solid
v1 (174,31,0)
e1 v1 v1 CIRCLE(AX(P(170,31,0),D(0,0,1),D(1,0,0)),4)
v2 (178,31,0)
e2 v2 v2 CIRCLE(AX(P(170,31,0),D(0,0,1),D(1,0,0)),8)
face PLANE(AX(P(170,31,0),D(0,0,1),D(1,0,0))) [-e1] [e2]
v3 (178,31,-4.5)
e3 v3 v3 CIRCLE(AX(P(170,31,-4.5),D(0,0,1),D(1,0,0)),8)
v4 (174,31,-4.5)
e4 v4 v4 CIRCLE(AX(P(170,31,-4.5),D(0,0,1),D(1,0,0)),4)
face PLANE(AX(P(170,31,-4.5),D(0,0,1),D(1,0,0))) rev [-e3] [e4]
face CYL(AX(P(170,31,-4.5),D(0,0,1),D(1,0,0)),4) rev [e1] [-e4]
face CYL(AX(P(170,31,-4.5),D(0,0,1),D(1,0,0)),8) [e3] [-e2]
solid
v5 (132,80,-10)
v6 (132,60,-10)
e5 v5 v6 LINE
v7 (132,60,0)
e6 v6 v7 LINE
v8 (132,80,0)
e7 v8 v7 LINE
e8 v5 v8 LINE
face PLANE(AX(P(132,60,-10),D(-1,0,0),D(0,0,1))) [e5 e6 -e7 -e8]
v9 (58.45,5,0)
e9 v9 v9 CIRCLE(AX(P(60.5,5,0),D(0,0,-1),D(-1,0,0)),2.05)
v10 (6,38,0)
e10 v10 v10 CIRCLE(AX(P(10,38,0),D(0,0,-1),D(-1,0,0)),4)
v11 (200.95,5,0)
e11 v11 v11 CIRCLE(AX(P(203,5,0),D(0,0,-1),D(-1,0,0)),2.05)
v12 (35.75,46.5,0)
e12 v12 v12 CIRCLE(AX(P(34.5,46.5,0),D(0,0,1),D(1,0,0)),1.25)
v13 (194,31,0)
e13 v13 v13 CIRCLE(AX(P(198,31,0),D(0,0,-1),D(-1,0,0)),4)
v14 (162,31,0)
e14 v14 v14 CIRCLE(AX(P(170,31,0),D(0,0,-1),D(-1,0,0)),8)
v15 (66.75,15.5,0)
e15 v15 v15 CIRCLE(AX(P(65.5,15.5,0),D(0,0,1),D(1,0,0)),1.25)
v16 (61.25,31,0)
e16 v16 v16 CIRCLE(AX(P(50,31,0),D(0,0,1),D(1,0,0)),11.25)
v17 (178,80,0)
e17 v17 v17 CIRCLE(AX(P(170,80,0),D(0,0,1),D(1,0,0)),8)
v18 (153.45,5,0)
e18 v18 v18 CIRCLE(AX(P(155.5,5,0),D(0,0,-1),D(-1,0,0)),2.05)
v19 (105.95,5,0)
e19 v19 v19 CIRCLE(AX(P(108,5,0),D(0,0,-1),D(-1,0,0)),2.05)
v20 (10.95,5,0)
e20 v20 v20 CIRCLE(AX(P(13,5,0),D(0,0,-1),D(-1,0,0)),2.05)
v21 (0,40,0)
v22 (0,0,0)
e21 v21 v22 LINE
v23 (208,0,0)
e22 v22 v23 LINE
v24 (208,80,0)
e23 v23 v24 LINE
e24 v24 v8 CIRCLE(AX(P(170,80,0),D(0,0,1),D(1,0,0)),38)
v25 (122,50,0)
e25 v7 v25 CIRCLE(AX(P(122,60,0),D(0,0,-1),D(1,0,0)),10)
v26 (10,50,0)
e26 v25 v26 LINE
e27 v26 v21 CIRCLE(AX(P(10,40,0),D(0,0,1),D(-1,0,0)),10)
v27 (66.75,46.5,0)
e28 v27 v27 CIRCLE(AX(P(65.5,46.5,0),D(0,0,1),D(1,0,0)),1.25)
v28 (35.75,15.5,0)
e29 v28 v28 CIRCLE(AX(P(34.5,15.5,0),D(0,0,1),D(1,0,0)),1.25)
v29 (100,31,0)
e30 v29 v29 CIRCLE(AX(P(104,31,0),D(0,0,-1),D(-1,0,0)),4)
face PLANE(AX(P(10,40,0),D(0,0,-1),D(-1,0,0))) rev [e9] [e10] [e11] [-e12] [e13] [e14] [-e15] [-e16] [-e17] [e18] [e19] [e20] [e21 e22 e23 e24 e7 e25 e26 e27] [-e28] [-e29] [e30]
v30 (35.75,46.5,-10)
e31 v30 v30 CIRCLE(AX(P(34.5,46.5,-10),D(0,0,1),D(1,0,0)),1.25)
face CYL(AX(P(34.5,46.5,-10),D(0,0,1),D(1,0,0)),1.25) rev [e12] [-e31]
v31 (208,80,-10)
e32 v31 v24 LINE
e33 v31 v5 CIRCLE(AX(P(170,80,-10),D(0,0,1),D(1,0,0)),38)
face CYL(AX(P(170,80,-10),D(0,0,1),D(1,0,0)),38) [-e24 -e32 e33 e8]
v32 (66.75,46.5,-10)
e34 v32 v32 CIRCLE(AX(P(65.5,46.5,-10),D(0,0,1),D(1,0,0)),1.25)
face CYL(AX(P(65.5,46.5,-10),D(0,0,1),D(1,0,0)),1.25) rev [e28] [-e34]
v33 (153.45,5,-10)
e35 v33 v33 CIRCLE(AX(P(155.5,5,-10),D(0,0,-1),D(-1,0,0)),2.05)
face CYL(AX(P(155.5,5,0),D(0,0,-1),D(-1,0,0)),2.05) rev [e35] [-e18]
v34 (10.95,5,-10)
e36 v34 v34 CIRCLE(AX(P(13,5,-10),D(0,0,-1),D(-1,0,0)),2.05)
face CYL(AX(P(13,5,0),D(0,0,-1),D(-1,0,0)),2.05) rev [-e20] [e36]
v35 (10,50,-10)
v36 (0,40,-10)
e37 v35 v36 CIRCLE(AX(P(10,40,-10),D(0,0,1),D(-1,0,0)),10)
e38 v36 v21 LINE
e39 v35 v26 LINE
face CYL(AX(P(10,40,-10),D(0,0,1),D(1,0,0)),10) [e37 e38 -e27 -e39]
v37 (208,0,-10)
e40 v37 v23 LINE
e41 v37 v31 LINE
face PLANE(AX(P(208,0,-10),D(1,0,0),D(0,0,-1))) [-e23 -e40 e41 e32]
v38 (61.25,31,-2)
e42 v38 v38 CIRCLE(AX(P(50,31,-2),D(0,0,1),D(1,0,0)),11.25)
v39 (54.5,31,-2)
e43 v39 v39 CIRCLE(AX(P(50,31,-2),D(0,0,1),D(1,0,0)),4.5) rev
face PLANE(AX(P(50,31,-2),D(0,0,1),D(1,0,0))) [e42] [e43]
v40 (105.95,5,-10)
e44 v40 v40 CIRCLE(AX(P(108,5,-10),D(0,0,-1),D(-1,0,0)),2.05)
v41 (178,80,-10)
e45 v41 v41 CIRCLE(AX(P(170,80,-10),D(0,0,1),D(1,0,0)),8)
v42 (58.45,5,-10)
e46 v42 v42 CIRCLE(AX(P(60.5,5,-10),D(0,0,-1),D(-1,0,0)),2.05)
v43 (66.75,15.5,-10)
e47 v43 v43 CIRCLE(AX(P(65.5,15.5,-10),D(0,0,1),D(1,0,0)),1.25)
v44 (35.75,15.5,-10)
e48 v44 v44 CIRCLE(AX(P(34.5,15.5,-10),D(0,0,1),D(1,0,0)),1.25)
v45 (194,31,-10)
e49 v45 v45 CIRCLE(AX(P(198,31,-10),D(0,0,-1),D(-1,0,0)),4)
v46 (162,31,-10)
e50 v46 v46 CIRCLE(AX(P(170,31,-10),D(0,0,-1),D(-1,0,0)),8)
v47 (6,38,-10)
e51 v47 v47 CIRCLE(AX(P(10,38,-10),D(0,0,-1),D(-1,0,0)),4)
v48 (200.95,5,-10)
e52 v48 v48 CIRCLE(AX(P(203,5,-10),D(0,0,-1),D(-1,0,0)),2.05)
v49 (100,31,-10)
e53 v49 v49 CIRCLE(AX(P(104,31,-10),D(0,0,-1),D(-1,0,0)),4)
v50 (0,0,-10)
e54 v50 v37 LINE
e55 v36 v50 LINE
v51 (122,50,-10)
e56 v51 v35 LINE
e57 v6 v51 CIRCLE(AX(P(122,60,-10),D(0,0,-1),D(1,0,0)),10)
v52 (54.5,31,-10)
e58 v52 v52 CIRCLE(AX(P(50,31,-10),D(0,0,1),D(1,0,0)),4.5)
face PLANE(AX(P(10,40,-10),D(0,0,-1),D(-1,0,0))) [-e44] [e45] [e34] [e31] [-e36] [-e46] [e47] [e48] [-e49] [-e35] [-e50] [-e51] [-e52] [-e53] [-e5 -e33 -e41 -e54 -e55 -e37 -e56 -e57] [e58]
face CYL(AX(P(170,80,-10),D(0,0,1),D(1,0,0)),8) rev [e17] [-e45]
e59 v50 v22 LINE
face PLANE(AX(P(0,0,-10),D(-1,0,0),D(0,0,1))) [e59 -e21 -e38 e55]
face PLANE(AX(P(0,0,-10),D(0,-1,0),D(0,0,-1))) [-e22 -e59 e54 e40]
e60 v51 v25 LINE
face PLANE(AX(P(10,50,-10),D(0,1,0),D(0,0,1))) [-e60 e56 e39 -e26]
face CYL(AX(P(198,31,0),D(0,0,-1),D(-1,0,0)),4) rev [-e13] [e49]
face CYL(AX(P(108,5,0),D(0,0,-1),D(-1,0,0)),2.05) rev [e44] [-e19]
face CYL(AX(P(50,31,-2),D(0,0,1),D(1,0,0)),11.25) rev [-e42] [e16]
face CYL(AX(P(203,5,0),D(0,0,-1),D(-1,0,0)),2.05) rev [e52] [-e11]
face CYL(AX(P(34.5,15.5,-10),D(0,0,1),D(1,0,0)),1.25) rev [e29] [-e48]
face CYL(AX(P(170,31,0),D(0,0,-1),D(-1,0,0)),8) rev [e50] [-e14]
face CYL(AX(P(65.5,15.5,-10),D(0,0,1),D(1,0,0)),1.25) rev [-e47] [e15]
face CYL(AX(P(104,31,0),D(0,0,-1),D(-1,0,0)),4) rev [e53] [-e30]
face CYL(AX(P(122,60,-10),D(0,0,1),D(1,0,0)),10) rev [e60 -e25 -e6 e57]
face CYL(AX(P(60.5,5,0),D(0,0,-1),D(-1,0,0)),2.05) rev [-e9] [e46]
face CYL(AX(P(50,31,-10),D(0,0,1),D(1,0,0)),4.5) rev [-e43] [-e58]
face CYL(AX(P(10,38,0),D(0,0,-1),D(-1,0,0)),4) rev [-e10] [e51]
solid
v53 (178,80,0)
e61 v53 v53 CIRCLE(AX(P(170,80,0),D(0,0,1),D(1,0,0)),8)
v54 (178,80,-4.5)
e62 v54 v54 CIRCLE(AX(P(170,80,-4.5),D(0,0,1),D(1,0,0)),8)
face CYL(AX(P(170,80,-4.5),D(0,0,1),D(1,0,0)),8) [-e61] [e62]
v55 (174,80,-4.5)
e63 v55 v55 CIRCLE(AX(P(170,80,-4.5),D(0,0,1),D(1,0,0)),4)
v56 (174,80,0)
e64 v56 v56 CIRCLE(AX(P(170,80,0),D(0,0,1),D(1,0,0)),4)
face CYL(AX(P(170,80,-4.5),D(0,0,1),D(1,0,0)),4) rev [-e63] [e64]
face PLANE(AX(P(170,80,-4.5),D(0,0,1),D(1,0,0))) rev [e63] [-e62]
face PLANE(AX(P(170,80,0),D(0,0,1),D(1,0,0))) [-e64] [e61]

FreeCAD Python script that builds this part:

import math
import FreeCAD as App
import Part
import Sketcher

V = App.Vector
Q = App.Units.Quantity

doc = App.newDocument("Part")
body = doc.addObject("PartDesign::Body", "Body")

sketch1 = body.newObject("Sketcher::SketchObject", "Sketch")
sketch1.AttachmentSupport = (doc.getObject("XY_Plane"), [""])
sketch1.MapMode = "FlatFace"
sketch1.addGeometry([
    Part.LineSegment(V(0, 0, 0), V(208, 0, 0)),
    Part.LineSegment(V(208, 0, 0), V(208, 80, 0)),
    Part.ArcOfCircle(Part.Circle(V(170, 80, 0), V(0, 0, 1), 38), math.radians(0), math.radians(180)),
    Part.LineSegment(V(132, 80, 0), V(132, 60, 0)),
    Part.ArcOfCircle(Part.Circle(V(122, 60, 0), V(0, 0, 1), 10), math.radians(-90), math.radians(0)),
    Part.LineSegment(V(122, 50, 0), V(10, 50, 0)),
    Part.ArcOfCircle(Part.Circle(V(10, 40, 0), V(0, 0, 1), 10), math.radians(90), math.radians(180)),
    Part.LineSegment(V(0, 40, 0), V(0, 0, 0)),
    Part.Circle(V(34.5, 15.5, 0), V(0, 0, 1), 1.25),
    Part.Circle(V(65.5, 15.5, 0), V(0, 0, 1), 1.25),
    Part.Circle(V(50, 31, 0), V(0, 0, 1), 4.5),
    Part.Circle(V(34.5, 46.5, 0), V(0, 0, 1), 1.25),
    Part.Circle(V(65.5, 46.5, 0), V(0, 0, 1), 1.25),
    Part.Circle(V(170, 80, 0), V(0, 0, 1), 8),
], False)
sketch1.addConstraint([
    Sketcher.Constraint("Coincident", 0, 2, 1, 1),
    Sketcher.Constraint("Tangent", 1, 2, 2, 1),
    Sketcher.Constraint("Tangent", 2, 2, 3, 1),
    Sketcher.Constraint("Tangent", 3, 2, 4, 2),
    Sketcher.Constraint("Tangent", 4, 1, 5, 1),
    Sketcher.Constraint("Tangent", 5, 2, 6, 1),
    Sketcher.Constraint("Tangent", 6, 2, 7, 1),
    Sketcher.Constraint("Coincident", 7, 2, 0, 1),
    Sketcher.Constraint("Horizontal", 0),
    Sketcher.Constraint("Vertical", 1),
    Sketcher.Constraint("Vertical", 3),
    Sketcher.Constraint("Horizontal", 5),
    Sketcher.Constraint("Vertical", 7),
    Sketcher.Constraint("Coincident", 7, 2, -1, 1),
    Sketcher.Constraint("Coincident", 13, 3, 2, 3),
    Sketcher.Constraint("Equal", 4, 6),
    Sketcher.Constraint("Equal", 8, 9),
    Sketcher.Constraint("Equal", 9, 11),
    Sketcher.Constraint("Equal", 11, 12),
    Sketcher.Constraint("Horizontal", 8, 3, 9, 3),
    Sketcher.Constraint("Horizontal", 11, 3, 12, 3),
    Sketcher.Constraint("Vertical", 8, 3, 11, 3),
    Sketcher.Constraint("Vertical", 9, 3, 12, 3),
    Sketcher.Constraint("Diameter", 10, Q("9 mm")),
    Sketcher.Constraint("Diameter", 13, Q("16 mm")),
    Sketcher.Constraint("Radius", 2, Q("38 mm")),
    Sketcher.Constraint("Radius", 4, Q("10 mm")),
    Sketcher.Constraint("Diameter", 8, Q("2.5 mm")),
    Sketcher.Constraint("DistanceX", 0, 1, 0, 2, Q("208 mm")),
    Sketcher.Constraint("DistanceY", 1, 1, 1, 2, Q("80 mm")),
    Sketcher.Constraint("DistanceY", 3, 2, 3, 1, Q("20 mm")),
    Sketcher.Constraint("DistanceX", -1, 1, 10, 3, Q("50 mm")),
    Sketcher.Constraint("DistanceY", -1, 1, 10, 3, Q("31 mm")),
    Sketcher.Constraint("DistanceX", 8, 3, 9, 3, Q("31 mm")),
    Sketcher.Constraint("DistanceY", 8, 3, 11, 3, Q("31 mm")),
    Sketcher.Constraint("DistanceX", -1, 1, 8, 3, Q("34.5 mm")),
    Sketcher.Constraint("DistanceY", -1, 1, 8, 3, Q("15.5 mm")),
])
pad1 = body.newObject("PartDesign::Pad", "Pad")
pad1.Profile = sketch1
pad1.Length = 10
pad1.Reversed = True

sketch2 = body.newObject("Sketcher::SketchObject", "Sketch001")
sketch2.AttachmentSupport = (doc.getObject("XY_Plane"), [""])
sketch2.MapMode = "FlatFace"
sketch2.addGeometry(Part.Circle(V(50, 31, 0), V(0, 0, 1), 11.25), False)
sketch2.addConstraint([
    Sketcher.Constraint("Diameter", 0, Q("22.5 mm")),
    Sketcher.Constraint("DistanceX", -1, 1, 0, 3, Q("50 mm")),
    Sketcher.Constraint("DistanceY", -1, 1, 0, 3, Q("31 mm")),
])
pocket1 = body.newObject("PartDesign::Pocket", "Pocket")
pocket1.Profile = sketch2
pocket1.Length = 2

sketch3 = body.newObject("Sketcher::SketchObject", "Sketch002")
sketch3.AttachmentSupport = (doc.getObject("XY_Plane"), [""])
sketch3.MapMode = "FlatFace"
sketch3.AttachmentOffset = App.Placement(V(0, 0, -10), App.Rotation())
sketch3.addGeometry(Part.Circle(V(170, 31, 0), V(0, 0, 1), 8), False)
sketch3.addConstraint([
    Sketcher.Constraint("Diameter", 0, Q("16 mm")),
    Sketcher.Constraint("DistanceX", -1, 1, 0, 3, Q("170 mm")),
    Sketcher.Constraint("DistanceY", -1, 1, 0, 3, Q("31 mm")),
])
pocket2 = body.newObject("PartDesign::Pocket", "Pocket001")
pocket2.Profile = sketch3
pocket2.Length = 10
pocket2.Reversed = True

sketch4 = body.newObject("Sketcher::SketchObject", "Sketch003")
sketch4.AttachmentSupport = (doc.getObject("XY_Plane"), [""])
sketch4.MapMode = "FlatFace"
sketch4.AttachmentOffset = App.Placement(V(0, 0, -10), App.Rotation())
sketch4.addGeometry([
    Part.Circle(V(203, 5, 0), V(0, 0, 1), 2.05),
    Part.Circle(V(155.5, 5, 0), V(0, 0, 1), 2.05),
    Part.Circle(V(108, 5, 0), V(0, 0, 1), 2.05),
    Part.Circle(V(60.5, 5, 0), V(0, 0, 1), 2.05),
    Part.Circle(V(13, 5, 0), V(0, 0, 1), 2.05),
], False)
sketch4.addConstraint([
    Sketcher.Constraint("Equal", 0, 1),
    Sketcher.Constraint("Equal", 1, 2),
    Sketcher.Constraint("Equal", 2, 3),
    Sketcher.Constraint("Equal", 3, 4),
    Sketcher.Constraint("Horizontal", 0, 3, 1, 3),
    Sketcher.Constraint("Horizontal", 1, 3, 2, 3),
    Sketcher.Constraint("Horizontal", 2, 3, 3, 3),
    Sketcher.Constraint("Horizontal", 3, 3, 4, 3),
    Sketcher.Constraint("Diameter", 0, Q("4.1 mm")),
    Sketcher.Constraint("DistanceX", -1, 1, 0, 3, Q("203 mm")),
    Sketcher.Constraint("DistanceY", -1, 1, 0, 3, Q("5 mm")),
    Sketcher.Constraint("DistanceX", -1, 1, 2, 3, Q("108 mm")),
    Sketcher.Constraint("DistanceX", -1, 1, 4, 3, Q("13 mm")),
    Sketcher.Constraint("DistanceX", 3, 3, 1, 3, Q("95 mm")),
    Sketcher.Constraint("DistanceX", -1, 1, 1, 3, Q("155.5 mm")),
])
pocket3 = body.newObject("PartDesign::Pocket", "Pocket002")
pocket3.Profile = sketch4
pocket3.Type = "ThroughAll"
pocket3.Reversed = True

sketch5 = body.newObject("Sketcher::SketchObject", "Sketch004")
sketch5.AttachmentSupport = (doc.getObject("XY_Plane"), [""])
sketch5.MapMode = "FlatFace"
sketch5.AttachmentOffset = App.Placement(V(0, 0, -10), App.Rotation())
sketch5.addGeometry([
    Part.Circle(V(198, 31, 0), V(0, 0, 1), 4),
    Part.Circle(V(104, 31, 0), V(0, 0, 1), 4),
    Part.Circle(V(10, 38, 0), V(0, 0, 1), 4),
], False)
sketch5.addConstraint([
    Sketcher.Constraint("Equal", 0, 1),
    Sketcher.Constraint("Equal", 1, 2),
    Sketcher.Constraint("Horizontal", 0, 3, 1, 3),
    Sketcher.Constraint("Diameter", 0, Q("8 mm")),
    Sketcher.Constraint("DistanceX", -1, 1, 0, 3, Q("198 mm")),
    Sketcher.Constraint("DistanceY", -1, 1, 0, 3, Q("31 mm")),
    Sketcher.Constraint("DistanceX", -1, 1, 1, 3, Q("104 mm")),
    Sketcher.Constraint("DistanceX", -1, 1, 2, 3, Q("10 mm")),
    Sketcher.Constraint("DistanceY", -1, 1, 2, 3, Q("38 mm")),
])
pocket4 = body.newObject("PartDesign::Pocket", "Pocket003")
pocket4.Profile = sketch5
pocket4.Type = "ThroughAll"
pocket4.Reversed = True
body2 = doc.addObject("PartDesign::Body", "Body001")

sketch6 = body2.newObject("Sketcher::SketchObject", "Sketch005")
sketch6.AttachmentSupport = (doc.getObject("XY_Plane001"), [""])
sketch6.MapMode = "FlatFace"
sketch6.addGeometry([
    Part.Circle(V(170, 31, 0), V(0, 0, 1), 8),
    Part.Circle(V(170, 31, 0), V(0, 0, 1), 4),
], False)
sketch6.addConstraint([
    Sketcher.Constraint("Coincident", 1, 3, 0, 3),
    Sketcher.Constraint("Diameter", 0, Q("16 mm")),
    Sketcher.Constraint("Diameter", 1, Q("8 mm")),
    Sketcher.Constraint("DistanceX", -1, 1, 0, 3, Q("170 mm")),
    Sketcher.Constraint("DistanceY", -1, 1, 0, 3, Q("31 mm")),
])
pad2 = body2.newObject("PartDesign::Pad", "Pad001")
pad2.Profile = sketch6
pad2.Length = 4.5
pad2.Reversed = True
body3 = doc.addObject("PartDesign::Body", "Body002")

sketch7 = body3.newObject("Sketcher::SketchObject", "Sketch006")
sketch7.AttachmentSupport = (doc.getObject("XY_Plane002"), [""])
sketch7.MapMode = "FlatFace"
sketch7.addGeometry([
    Part.Circle(V(170, 80, 0), V(0, 0, 1), 8),
    Part.Circle(V(170, 80, 0), V(0, 0, 1), 4),
], False)
sketch7.addConstraint([
    Sketcher.Constraint("Coincident", 1, 3, 0, 3),
    Sketcher.Constraint("Diameter", 0, Q("16 mm")),
    Sketcher.Constraint("Diameter", 1, Q("8 mm")),
    Sketcher.Constraint("DistanceX", -1, 1, 0, 3, Q("170 mm")),
    Sketcher.Constraint("DistanceY", -1, 1, 0, 3, Q("80 mm")),
])
pad3 = body3.newObject("PartDesign::Pad", "Pad002")
pad3.Profile = sketch7
pad3.Length = 4.5
pad3.Reversed = True

doc.recompute()
